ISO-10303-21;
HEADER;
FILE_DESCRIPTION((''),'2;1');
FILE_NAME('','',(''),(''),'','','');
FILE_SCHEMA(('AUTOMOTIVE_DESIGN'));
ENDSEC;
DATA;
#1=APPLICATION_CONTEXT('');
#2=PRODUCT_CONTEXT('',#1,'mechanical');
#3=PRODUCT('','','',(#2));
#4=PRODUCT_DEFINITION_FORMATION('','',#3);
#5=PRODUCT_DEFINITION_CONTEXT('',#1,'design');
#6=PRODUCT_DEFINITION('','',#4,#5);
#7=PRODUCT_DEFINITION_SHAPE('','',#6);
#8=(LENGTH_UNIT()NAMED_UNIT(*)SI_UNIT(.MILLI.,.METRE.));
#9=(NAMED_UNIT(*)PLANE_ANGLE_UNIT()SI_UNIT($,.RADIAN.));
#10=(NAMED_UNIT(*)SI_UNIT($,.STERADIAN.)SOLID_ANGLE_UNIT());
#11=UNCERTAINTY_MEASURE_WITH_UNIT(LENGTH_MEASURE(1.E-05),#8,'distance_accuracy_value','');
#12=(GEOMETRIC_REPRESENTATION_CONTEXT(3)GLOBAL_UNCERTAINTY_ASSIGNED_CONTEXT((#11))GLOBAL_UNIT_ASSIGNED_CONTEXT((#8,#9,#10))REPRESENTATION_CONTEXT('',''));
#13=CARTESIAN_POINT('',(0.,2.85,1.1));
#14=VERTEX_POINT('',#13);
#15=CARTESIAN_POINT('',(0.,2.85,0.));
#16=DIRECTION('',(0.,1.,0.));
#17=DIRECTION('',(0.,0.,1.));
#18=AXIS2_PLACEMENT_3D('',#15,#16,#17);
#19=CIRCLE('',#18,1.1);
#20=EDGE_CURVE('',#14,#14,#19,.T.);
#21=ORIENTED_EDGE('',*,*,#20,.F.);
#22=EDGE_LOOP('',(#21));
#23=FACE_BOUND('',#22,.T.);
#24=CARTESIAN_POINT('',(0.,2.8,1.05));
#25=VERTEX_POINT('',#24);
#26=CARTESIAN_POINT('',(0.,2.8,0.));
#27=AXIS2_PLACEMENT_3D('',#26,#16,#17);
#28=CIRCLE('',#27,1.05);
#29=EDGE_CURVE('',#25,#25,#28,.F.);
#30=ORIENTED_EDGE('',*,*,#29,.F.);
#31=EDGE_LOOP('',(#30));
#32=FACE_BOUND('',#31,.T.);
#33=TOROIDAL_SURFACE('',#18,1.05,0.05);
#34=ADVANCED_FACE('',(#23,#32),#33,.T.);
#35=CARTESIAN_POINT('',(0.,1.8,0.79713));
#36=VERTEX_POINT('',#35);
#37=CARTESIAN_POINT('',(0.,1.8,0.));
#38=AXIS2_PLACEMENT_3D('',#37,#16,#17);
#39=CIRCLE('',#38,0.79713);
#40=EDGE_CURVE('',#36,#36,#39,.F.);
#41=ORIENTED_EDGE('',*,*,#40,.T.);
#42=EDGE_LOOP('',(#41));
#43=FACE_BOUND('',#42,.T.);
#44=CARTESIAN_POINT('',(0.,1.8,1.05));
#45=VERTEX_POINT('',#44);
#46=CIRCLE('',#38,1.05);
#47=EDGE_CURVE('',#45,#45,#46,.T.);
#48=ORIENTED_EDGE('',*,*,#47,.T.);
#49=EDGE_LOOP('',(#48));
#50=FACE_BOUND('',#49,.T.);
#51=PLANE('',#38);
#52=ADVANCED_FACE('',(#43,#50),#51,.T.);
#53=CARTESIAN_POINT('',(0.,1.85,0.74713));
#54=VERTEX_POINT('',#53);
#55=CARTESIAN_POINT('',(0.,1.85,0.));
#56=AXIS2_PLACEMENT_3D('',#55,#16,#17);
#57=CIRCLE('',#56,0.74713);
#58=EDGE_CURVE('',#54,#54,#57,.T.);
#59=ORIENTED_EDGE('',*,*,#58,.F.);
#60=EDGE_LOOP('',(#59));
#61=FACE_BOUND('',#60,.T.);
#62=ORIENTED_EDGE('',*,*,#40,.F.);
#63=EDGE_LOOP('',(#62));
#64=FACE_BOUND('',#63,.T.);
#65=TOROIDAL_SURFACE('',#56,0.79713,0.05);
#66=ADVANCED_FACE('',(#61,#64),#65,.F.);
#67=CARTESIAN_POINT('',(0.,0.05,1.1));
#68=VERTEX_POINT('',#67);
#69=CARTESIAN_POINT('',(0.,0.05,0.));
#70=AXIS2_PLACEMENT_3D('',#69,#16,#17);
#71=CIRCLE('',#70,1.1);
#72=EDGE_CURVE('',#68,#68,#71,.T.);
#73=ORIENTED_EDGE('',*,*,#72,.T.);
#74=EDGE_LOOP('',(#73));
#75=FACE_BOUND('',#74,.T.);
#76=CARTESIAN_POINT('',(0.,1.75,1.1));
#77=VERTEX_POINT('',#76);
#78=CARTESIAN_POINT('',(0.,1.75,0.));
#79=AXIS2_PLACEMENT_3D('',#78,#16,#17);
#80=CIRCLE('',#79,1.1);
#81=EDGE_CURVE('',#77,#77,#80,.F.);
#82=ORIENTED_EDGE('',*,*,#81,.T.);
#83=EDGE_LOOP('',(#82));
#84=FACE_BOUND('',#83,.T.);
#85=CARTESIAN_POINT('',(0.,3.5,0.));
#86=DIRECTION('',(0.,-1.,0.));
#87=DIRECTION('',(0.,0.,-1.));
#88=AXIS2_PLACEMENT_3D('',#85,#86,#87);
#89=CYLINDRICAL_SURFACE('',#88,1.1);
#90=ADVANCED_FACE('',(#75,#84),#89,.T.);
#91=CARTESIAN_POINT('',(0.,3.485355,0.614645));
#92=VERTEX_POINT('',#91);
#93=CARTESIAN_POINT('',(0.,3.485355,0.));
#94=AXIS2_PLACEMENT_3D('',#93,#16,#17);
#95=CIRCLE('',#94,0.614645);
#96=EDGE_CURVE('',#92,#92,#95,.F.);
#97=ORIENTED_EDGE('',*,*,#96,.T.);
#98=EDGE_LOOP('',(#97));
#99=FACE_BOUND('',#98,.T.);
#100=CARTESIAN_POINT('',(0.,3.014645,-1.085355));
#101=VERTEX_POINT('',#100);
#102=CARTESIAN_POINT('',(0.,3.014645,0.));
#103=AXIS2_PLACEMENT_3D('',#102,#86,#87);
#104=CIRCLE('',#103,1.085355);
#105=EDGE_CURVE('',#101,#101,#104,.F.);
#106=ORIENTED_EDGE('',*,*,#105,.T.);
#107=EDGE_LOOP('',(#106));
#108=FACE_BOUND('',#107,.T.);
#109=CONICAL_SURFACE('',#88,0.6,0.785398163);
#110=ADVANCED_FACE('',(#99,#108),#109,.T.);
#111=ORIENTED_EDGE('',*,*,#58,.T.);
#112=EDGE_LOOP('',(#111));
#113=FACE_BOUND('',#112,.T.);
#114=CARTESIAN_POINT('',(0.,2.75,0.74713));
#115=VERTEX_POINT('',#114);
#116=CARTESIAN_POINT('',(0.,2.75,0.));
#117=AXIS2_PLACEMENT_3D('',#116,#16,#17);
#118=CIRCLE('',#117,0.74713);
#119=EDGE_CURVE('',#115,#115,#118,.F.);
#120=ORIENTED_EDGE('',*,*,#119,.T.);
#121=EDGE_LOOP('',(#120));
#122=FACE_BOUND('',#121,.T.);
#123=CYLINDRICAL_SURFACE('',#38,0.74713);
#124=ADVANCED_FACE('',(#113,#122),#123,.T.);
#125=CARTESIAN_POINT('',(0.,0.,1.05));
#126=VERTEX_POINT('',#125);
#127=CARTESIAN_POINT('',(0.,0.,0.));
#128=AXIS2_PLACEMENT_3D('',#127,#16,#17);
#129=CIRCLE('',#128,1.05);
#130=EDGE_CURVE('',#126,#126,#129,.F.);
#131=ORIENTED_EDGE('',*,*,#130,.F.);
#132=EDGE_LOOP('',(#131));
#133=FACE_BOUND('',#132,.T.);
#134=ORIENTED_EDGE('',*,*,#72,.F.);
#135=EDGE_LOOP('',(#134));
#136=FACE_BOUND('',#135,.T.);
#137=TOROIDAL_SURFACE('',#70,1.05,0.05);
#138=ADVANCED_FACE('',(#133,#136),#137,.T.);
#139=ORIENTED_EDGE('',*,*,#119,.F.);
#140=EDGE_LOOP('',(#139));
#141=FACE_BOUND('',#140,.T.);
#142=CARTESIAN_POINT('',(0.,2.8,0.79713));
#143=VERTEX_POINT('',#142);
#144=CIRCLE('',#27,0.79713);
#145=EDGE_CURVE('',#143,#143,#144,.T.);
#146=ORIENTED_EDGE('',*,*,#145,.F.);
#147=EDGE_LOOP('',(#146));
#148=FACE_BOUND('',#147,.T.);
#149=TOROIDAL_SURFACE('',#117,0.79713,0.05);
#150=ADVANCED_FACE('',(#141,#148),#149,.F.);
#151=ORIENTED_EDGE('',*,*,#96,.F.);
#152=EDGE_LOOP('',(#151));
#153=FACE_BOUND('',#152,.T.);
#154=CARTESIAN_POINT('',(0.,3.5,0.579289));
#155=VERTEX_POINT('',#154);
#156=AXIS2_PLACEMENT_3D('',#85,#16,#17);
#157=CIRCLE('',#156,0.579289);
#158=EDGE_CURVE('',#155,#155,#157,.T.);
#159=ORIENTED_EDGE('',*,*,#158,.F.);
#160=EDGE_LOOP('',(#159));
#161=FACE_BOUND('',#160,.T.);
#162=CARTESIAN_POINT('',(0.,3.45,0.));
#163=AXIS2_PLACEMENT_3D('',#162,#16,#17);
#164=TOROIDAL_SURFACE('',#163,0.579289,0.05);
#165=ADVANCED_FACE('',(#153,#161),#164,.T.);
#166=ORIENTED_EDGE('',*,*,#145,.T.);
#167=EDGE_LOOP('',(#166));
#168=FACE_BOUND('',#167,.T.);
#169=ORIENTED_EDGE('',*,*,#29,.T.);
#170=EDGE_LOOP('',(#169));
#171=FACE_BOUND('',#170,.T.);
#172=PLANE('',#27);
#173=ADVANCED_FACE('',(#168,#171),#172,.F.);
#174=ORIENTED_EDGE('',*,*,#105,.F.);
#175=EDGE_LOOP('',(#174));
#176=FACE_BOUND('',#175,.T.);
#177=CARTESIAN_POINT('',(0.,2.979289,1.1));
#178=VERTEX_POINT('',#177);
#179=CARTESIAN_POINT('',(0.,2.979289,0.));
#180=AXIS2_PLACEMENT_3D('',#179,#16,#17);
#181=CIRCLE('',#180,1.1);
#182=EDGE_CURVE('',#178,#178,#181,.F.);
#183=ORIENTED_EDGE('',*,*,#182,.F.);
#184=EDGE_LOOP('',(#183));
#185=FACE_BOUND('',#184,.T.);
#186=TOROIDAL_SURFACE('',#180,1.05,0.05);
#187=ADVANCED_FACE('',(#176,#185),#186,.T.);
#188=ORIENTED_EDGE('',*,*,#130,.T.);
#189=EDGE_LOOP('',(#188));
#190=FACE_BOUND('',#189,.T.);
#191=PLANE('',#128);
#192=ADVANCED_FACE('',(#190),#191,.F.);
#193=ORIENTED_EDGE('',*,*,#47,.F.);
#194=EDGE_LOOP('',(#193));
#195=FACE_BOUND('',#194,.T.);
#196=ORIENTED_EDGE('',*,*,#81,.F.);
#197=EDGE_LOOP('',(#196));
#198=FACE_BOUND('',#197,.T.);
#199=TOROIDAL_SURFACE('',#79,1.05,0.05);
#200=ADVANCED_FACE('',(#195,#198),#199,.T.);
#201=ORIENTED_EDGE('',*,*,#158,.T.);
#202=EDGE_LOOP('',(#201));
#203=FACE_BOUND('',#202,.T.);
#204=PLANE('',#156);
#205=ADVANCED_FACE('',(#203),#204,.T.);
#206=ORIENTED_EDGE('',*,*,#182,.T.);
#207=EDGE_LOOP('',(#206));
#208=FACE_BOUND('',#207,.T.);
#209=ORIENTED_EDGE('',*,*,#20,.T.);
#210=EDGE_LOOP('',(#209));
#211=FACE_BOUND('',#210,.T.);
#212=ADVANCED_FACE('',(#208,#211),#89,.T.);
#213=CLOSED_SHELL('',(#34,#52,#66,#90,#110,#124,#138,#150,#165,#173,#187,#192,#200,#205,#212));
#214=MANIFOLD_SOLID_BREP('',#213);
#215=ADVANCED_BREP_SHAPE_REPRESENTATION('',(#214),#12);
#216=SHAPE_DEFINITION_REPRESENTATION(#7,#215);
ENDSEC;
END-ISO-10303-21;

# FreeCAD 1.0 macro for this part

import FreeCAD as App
import Part
import Sketcher
from FreeCAD import Vector
Q = App.Units.Quantity


def edges_at(feature, points):
    """Names of the edges that pass closest to the given points."""
    edges = feature.Shape.Edges
    near = lambda p: min(range(len(edges)), key=lambda i: edges[i].distToShape(Part.Vertex(*p))[0])
    return sorted({f"Edge{near(p) + 1}" for p in points})

doc = App.newDocument("Part")
params = doc.addObject("Spreadsheet::Sheet", "Params")
for row, (alias, value) in enumerate([
    ("sketch1_diameter", "2.2 mm"),
    ("pad1_length", "3.5 mm"),
    ("chamfer_size", "0.5 mm"),
    ("pocket1_length", "1 mm"),
    ("fillet_radius", "0.05 mm"),
], start=1):
    params.set(f"A{row}", alias)
    params.set(f"B{row}", "=" + value)
    params.setAlias(f"B{row}", alias)

body = doc.addObject("PartDesign::Body", "Body")

sketch1 = body.newObject("Sketcher::SketchObject", "Sketch")
sketch1.AttachmentSupport = (doc.getObject("XZ_Plane"), [""])
sketch1.MapMode = "FlatFace"
sketch1.addGeometry(Part.Circle(Vector(0, 0, 0), Vector(0, 0, 1), 1.1), False)
sketch1.addConstraint([
    Sketcher.Constraint("Coincident", 0, 3, -1, 1),
    Sketcher.Constraint("Diameter", 0, Q("2.2 mm")),
])
sketch1.setExpression("Constraints[1]", "Params.sketch1_diameter")
pad1 = body.newObject("PartDesign::Pad", "Pad")
pad1.Profile = sketch1
pad1.setExpression("Length", "Params.pad1_length")
pad1.Reversed = True
doc.recompute()

chamfer = body.newObject("PartDesign::Chamfer", "Chamfer")
chamfer.Base = (pad1, edges_at(pad1, [(-1.1, 3.5, 0)]))
chamfer.setExpression("Size", "Params.chamfer_size")

sketch2 = body.newObject("Sketcher::SketchObject", "Sketch001")
sketch2.AttachmentSupport = (doc.getObject("XZ_Plane"), [""])
sketch2.MapMode = "FlatFace"
sketch2.AttachmentOffset = App.Placement(Vector(0, 0, -2.8), App.Rotation())
sketch2.addGeometry([
    Part.Circle(Vector(0, 0, 0), Vector(0, 0, 1), 1.4),
    Part.Circle(Vector(0, 0, 0), Vector(0, 0, 1), 0.7),
], False)
sketch2.addConstraint([
    Sketcher.Constraint("Coincident", 0, 3, -1, 1),
    Sketcher.Constraint("Coincident", 1, 3, -1, 1),
    Sketcher.Constraint("Diameter", 1, Q("1.49426 mm")),
    Sketcher.Constraint("Diameter", 0, Q("2.792185 mm")),
])
pocket1 = body.newObject("PartDesign::Pocket", "Pocket")
pocket1.Profile = sketch2
pocket1.setExpression("Length", "Params.pocket1_length")
pocket1.Reversed = True
doc.recompute()

fillet = body.newObject("PartDesign::Fillet", "Fillet")
fillet.Base = (pocket1, edges_at(pocket1, [
    (-1.1, 2.8, 0),
    (-1.1, 1.8, 0),
    (-0.747, 2.8, 0),
    (-1.1, 0, 0),
    (-0.6, 3.5, 0),
    (-1.1, 3, 0),
    (-0.747, 1.8, 0),
]))
fillet.setExpression("Radius", "Params.fillet_radius")

doc.recompute()
